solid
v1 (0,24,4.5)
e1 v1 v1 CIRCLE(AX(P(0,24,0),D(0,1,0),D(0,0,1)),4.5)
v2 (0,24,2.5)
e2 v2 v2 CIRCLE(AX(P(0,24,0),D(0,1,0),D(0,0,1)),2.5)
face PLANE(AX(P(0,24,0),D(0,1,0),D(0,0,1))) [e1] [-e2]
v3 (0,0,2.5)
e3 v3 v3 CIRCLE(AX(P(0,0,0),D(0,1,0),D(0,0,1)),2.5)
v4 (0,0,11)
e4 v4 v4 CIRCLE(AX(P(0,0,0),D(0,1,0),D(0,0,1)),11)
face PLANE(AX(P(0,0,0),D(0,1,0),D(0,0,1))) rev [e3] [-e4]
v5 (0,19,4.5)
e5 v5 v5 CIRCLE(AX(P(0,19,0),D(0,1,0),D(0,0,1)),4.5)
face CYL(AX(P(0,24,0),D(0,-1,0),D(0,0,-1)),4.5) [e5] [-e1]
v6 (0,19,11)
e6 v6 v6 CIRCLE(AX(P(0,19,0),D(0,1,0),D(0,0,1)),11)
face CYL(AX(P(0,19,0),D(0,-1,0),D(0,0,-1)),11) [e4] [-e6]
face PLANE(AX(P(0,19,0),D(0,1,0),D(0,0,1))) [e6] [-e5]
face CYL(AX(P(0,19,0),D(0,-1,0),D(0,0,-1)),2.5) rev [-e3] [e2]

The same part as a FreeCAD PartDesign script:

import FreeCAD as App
import Part
import Sketcher

V = App.Vector
Q = App.Units.Quantity

doc = App.newDocument("Part")
body = doc.addObject("PartDesign::Body", "Body")

# Sketch on XZ plane
sketch1 = body.newObject("Sketcher::SketchObject", "Sketch")
sketch1.AttachmentSupport = (doc.getObject("XZ_Plane"), [""])
sketch1.MapMode = "FlatFace"
sketch1.addGeometry([
    Part.Circle(V(0, 0, 0), V(0, 0, 1), 11),
    Part.Circle(V(0, 0, 0), V(0, 0, 1), 2.5),
], False)
sketch1.addConstraint([
    Sketcher.Constraint("Coincident", 0, 3, -1, 1),
    Sketcher.Constraint("Coincident", 1, 3, -1, 1),
    Sketcher.Constraint("Diameter", 0, Q("22 mm")),
    Sketcher.Constraint("Diameter", 1, Q("5 mm")),
])
pad1 = body.newObject("PartDesign::Pad", "Pad")
pad1.Profile = sketch1
pad1.Length = 19
pad1.Reversed = True

# Sketch on XZ plane
sketch2 = body.newObject("Sketcher::SketchObject", "Sketch001")
sketch2.AttachmentSupport = (doc.getObject("XZ_Plane"), [""])
sketch2.MapMode = "FlatFace"
sketch2.AttachmentOffset = App.Placement(V(0, 0, -19), App.Rotation())
sketch2.addGeometry([
    Part.Circle(V(0, 0, 0), V(0, 0, 1), 4.5),
    Part.Circle(V(0, 0, 0), V(0, 0, 1), 2.5),
], False)
sketch2.addConstraint([
    Sketcher.Constraint("Coincident", 0, 3, -1, 1),
    Sketcher.Constraint("Coincident", 1, 3, -1, 1),
    Sketcher.Constraint("Diameter", 0, Q("9 mm")),
    Sketcher.Constraint("Diameter", 1, Q("5 mm")),
])
pad2 = body.newObject("PartDesign::Pad", "Pad001")
pad2.Profile = sketch2
pad2.Length = 5
pad2.Reversed = True

doc.recompute()
